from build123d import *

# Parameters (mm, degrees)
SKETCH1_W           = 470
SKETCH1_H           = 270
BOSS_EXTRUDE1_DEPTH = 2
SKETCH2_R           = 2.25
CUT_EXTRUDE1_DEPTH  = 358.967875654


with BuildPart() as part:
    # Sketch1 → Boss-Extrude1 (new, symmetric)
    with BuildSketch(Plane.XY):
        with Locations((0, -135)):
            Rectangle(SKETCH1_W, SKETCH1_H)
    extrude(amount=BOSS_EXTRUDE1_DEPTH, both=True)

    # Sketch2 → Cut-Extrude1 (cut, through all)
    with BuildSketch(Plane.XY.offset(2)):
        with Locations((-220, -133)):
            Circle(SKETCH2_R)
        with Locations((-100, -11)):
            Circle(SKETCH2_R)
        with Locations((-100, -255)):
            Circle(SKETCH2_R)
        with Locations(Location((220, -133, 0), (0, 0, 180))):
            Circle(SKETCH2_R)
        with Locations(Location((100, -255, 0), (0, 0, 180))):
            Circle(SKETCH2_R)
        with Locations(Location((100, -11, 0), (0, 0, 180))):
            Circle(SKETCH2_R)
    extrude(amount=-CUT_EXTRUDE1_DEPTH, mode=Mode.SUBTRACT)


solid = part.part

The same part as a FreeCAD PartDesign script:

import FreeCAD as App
import Part
import Sketcher
from FreeCAD import Vector
Q = App.Units.Quantity


def add_polygon(sketch, points):
    """Adds a closed chain of lines whose ends are joined by coincident constraints."""
    first, n = sketch.GeometryCount, len(points)
    for a, b in zip(points, points[1:] + points[:1]):
        sketch.addGeometry(Part.LineSegment(App.Vector(*a, 0), App.Vector(*b, 0)), False)
    for i in range(n):
        sketch.addConstraint(Sketcher.Constraint("Coincident", first + i, 2, first + (i + 1) % n, 1))

doc = App.newDocument("Part")
body = doc.addObject("PartDesign::Body", "Body")

# Sketch on XY plane
sketch1 = doc.addObject("Sketcher::SketchObject", "Sketch")
body.addObject(sketch1)
sketch1.AttachmentSupport = (doc.XY_Plane, [""])
sketch1.MapMode = "FlatFace"
add_polygon(sketch1, [(-235, 0), (-235, -270), (235, -270), (235, 0)])  # lines 0-3
sketch1.addConstraint([
    Sketcher.Constraint("Vertical", 0),
    Sketcher.Constraint("Horizontal", 1),
    Sketcher.Constraint("Vertical", 2),
    Sketcher.Constraint("Horizontal", 3),
    Sketcher.Constraint("Symmetric", 2, 2, 3, 2, -1, 1),
    Sketcher.Constraint("DistanceX", 1, 1, 1, 2, Q("470 mm")),
    Sketcher.Constraint("DistanceY", 0, 2, 0, 1, Q("270 mm")),
])
pad1 = doc.addObject("PartDesign::Pad", "Pad")
body.addObject(pad1)
pad1.Profile = sketch1
pad1.Length = 4
pad1.Midplane = True

# Sketch on XY plane
sketch2 = doc.addObject("Sketcher::SketchObject", "Sketch001")
body.addObject(sketch2)
sketch2.AttachmentSupport = (doc.XY_Plane, [""])
sketch2.MapMode = "FlatFace"
sketch2.AttachmentOffset = App.Placement(Vector(0, 0, 2), App.Rotation())
sketch2.addGeometry([
    Part.Circle(Vector(-220, -133, 0), Vector(0, 0, 1), 2.25),  # 0
    Part.Circle(Vector(-100, -11, 0), Vector(0, 0, 1), 2.25),  # 1
    Part.Circle(Vector(-100, -255, 0), Vector(0, 0, 1), 2.25),  # 2
    Part.Circle(Vector(220, -133, 0), Vector(0, 0, 1), 2.25),  # 3
    Part.Circle(Vector(100, -255, 0), Vector(0, 0, 1), 2.25),  # 4
    Part.Circle(Vector(100, -11, 0), Vector(0, 0, 1), 2.25),  # 5
], False)
sketch2.addConstraint([
    Sketcher.Constraint("Equal", 0, 1),
    Sketcher.Constraint("Equal", 1, 2),
    Sketcher.Constraint("Equal", 2, 3),
    Sketcher.Constraint("Equal", 3, 4),
    Sketcher.Constraint("Equal", 4, 5),
    Sketcher.Constraint("Symmetric", 0, 3, 3, 3, -2),
    Sketcher.Constraint("Symmetric", 2, 3, 4, 3, -2),
    Sketcher.Constraint("Symmetric", 1, 3, 5, 3, -2),
    Sketcher.Constraint("Vertical", 1, 3, 2, 3),
    Sketcher.Constraint("Diameter", 0, Q("4.5 mm")),
    Sketcher.Constraint("DistanceX", 0, 3, -1, 1, Q("220 mm")),
    Sketcher.Constraint("DistanceY", 0, 3, -1, 1, Q("133 mm")),
    Sketcher.Constraint("DistanceX", 1, 3, -1, 1, Q("100 mm")),
    Sketcher.Constraint("DistanceY", 1, 3, -1, 1, Q("11 mm")),
    Sketcher.Constraint("DistanceY", 2, 3, -1, 1, Q("255 mm")),
])
pocket1 = doc.addObject("PartDesign::Pocket", "Pocket")
body.addObject(pocket1)
pocket1.Profile = sketch2
pocket1.Type = "ThroughAll"

doc.recompute()
